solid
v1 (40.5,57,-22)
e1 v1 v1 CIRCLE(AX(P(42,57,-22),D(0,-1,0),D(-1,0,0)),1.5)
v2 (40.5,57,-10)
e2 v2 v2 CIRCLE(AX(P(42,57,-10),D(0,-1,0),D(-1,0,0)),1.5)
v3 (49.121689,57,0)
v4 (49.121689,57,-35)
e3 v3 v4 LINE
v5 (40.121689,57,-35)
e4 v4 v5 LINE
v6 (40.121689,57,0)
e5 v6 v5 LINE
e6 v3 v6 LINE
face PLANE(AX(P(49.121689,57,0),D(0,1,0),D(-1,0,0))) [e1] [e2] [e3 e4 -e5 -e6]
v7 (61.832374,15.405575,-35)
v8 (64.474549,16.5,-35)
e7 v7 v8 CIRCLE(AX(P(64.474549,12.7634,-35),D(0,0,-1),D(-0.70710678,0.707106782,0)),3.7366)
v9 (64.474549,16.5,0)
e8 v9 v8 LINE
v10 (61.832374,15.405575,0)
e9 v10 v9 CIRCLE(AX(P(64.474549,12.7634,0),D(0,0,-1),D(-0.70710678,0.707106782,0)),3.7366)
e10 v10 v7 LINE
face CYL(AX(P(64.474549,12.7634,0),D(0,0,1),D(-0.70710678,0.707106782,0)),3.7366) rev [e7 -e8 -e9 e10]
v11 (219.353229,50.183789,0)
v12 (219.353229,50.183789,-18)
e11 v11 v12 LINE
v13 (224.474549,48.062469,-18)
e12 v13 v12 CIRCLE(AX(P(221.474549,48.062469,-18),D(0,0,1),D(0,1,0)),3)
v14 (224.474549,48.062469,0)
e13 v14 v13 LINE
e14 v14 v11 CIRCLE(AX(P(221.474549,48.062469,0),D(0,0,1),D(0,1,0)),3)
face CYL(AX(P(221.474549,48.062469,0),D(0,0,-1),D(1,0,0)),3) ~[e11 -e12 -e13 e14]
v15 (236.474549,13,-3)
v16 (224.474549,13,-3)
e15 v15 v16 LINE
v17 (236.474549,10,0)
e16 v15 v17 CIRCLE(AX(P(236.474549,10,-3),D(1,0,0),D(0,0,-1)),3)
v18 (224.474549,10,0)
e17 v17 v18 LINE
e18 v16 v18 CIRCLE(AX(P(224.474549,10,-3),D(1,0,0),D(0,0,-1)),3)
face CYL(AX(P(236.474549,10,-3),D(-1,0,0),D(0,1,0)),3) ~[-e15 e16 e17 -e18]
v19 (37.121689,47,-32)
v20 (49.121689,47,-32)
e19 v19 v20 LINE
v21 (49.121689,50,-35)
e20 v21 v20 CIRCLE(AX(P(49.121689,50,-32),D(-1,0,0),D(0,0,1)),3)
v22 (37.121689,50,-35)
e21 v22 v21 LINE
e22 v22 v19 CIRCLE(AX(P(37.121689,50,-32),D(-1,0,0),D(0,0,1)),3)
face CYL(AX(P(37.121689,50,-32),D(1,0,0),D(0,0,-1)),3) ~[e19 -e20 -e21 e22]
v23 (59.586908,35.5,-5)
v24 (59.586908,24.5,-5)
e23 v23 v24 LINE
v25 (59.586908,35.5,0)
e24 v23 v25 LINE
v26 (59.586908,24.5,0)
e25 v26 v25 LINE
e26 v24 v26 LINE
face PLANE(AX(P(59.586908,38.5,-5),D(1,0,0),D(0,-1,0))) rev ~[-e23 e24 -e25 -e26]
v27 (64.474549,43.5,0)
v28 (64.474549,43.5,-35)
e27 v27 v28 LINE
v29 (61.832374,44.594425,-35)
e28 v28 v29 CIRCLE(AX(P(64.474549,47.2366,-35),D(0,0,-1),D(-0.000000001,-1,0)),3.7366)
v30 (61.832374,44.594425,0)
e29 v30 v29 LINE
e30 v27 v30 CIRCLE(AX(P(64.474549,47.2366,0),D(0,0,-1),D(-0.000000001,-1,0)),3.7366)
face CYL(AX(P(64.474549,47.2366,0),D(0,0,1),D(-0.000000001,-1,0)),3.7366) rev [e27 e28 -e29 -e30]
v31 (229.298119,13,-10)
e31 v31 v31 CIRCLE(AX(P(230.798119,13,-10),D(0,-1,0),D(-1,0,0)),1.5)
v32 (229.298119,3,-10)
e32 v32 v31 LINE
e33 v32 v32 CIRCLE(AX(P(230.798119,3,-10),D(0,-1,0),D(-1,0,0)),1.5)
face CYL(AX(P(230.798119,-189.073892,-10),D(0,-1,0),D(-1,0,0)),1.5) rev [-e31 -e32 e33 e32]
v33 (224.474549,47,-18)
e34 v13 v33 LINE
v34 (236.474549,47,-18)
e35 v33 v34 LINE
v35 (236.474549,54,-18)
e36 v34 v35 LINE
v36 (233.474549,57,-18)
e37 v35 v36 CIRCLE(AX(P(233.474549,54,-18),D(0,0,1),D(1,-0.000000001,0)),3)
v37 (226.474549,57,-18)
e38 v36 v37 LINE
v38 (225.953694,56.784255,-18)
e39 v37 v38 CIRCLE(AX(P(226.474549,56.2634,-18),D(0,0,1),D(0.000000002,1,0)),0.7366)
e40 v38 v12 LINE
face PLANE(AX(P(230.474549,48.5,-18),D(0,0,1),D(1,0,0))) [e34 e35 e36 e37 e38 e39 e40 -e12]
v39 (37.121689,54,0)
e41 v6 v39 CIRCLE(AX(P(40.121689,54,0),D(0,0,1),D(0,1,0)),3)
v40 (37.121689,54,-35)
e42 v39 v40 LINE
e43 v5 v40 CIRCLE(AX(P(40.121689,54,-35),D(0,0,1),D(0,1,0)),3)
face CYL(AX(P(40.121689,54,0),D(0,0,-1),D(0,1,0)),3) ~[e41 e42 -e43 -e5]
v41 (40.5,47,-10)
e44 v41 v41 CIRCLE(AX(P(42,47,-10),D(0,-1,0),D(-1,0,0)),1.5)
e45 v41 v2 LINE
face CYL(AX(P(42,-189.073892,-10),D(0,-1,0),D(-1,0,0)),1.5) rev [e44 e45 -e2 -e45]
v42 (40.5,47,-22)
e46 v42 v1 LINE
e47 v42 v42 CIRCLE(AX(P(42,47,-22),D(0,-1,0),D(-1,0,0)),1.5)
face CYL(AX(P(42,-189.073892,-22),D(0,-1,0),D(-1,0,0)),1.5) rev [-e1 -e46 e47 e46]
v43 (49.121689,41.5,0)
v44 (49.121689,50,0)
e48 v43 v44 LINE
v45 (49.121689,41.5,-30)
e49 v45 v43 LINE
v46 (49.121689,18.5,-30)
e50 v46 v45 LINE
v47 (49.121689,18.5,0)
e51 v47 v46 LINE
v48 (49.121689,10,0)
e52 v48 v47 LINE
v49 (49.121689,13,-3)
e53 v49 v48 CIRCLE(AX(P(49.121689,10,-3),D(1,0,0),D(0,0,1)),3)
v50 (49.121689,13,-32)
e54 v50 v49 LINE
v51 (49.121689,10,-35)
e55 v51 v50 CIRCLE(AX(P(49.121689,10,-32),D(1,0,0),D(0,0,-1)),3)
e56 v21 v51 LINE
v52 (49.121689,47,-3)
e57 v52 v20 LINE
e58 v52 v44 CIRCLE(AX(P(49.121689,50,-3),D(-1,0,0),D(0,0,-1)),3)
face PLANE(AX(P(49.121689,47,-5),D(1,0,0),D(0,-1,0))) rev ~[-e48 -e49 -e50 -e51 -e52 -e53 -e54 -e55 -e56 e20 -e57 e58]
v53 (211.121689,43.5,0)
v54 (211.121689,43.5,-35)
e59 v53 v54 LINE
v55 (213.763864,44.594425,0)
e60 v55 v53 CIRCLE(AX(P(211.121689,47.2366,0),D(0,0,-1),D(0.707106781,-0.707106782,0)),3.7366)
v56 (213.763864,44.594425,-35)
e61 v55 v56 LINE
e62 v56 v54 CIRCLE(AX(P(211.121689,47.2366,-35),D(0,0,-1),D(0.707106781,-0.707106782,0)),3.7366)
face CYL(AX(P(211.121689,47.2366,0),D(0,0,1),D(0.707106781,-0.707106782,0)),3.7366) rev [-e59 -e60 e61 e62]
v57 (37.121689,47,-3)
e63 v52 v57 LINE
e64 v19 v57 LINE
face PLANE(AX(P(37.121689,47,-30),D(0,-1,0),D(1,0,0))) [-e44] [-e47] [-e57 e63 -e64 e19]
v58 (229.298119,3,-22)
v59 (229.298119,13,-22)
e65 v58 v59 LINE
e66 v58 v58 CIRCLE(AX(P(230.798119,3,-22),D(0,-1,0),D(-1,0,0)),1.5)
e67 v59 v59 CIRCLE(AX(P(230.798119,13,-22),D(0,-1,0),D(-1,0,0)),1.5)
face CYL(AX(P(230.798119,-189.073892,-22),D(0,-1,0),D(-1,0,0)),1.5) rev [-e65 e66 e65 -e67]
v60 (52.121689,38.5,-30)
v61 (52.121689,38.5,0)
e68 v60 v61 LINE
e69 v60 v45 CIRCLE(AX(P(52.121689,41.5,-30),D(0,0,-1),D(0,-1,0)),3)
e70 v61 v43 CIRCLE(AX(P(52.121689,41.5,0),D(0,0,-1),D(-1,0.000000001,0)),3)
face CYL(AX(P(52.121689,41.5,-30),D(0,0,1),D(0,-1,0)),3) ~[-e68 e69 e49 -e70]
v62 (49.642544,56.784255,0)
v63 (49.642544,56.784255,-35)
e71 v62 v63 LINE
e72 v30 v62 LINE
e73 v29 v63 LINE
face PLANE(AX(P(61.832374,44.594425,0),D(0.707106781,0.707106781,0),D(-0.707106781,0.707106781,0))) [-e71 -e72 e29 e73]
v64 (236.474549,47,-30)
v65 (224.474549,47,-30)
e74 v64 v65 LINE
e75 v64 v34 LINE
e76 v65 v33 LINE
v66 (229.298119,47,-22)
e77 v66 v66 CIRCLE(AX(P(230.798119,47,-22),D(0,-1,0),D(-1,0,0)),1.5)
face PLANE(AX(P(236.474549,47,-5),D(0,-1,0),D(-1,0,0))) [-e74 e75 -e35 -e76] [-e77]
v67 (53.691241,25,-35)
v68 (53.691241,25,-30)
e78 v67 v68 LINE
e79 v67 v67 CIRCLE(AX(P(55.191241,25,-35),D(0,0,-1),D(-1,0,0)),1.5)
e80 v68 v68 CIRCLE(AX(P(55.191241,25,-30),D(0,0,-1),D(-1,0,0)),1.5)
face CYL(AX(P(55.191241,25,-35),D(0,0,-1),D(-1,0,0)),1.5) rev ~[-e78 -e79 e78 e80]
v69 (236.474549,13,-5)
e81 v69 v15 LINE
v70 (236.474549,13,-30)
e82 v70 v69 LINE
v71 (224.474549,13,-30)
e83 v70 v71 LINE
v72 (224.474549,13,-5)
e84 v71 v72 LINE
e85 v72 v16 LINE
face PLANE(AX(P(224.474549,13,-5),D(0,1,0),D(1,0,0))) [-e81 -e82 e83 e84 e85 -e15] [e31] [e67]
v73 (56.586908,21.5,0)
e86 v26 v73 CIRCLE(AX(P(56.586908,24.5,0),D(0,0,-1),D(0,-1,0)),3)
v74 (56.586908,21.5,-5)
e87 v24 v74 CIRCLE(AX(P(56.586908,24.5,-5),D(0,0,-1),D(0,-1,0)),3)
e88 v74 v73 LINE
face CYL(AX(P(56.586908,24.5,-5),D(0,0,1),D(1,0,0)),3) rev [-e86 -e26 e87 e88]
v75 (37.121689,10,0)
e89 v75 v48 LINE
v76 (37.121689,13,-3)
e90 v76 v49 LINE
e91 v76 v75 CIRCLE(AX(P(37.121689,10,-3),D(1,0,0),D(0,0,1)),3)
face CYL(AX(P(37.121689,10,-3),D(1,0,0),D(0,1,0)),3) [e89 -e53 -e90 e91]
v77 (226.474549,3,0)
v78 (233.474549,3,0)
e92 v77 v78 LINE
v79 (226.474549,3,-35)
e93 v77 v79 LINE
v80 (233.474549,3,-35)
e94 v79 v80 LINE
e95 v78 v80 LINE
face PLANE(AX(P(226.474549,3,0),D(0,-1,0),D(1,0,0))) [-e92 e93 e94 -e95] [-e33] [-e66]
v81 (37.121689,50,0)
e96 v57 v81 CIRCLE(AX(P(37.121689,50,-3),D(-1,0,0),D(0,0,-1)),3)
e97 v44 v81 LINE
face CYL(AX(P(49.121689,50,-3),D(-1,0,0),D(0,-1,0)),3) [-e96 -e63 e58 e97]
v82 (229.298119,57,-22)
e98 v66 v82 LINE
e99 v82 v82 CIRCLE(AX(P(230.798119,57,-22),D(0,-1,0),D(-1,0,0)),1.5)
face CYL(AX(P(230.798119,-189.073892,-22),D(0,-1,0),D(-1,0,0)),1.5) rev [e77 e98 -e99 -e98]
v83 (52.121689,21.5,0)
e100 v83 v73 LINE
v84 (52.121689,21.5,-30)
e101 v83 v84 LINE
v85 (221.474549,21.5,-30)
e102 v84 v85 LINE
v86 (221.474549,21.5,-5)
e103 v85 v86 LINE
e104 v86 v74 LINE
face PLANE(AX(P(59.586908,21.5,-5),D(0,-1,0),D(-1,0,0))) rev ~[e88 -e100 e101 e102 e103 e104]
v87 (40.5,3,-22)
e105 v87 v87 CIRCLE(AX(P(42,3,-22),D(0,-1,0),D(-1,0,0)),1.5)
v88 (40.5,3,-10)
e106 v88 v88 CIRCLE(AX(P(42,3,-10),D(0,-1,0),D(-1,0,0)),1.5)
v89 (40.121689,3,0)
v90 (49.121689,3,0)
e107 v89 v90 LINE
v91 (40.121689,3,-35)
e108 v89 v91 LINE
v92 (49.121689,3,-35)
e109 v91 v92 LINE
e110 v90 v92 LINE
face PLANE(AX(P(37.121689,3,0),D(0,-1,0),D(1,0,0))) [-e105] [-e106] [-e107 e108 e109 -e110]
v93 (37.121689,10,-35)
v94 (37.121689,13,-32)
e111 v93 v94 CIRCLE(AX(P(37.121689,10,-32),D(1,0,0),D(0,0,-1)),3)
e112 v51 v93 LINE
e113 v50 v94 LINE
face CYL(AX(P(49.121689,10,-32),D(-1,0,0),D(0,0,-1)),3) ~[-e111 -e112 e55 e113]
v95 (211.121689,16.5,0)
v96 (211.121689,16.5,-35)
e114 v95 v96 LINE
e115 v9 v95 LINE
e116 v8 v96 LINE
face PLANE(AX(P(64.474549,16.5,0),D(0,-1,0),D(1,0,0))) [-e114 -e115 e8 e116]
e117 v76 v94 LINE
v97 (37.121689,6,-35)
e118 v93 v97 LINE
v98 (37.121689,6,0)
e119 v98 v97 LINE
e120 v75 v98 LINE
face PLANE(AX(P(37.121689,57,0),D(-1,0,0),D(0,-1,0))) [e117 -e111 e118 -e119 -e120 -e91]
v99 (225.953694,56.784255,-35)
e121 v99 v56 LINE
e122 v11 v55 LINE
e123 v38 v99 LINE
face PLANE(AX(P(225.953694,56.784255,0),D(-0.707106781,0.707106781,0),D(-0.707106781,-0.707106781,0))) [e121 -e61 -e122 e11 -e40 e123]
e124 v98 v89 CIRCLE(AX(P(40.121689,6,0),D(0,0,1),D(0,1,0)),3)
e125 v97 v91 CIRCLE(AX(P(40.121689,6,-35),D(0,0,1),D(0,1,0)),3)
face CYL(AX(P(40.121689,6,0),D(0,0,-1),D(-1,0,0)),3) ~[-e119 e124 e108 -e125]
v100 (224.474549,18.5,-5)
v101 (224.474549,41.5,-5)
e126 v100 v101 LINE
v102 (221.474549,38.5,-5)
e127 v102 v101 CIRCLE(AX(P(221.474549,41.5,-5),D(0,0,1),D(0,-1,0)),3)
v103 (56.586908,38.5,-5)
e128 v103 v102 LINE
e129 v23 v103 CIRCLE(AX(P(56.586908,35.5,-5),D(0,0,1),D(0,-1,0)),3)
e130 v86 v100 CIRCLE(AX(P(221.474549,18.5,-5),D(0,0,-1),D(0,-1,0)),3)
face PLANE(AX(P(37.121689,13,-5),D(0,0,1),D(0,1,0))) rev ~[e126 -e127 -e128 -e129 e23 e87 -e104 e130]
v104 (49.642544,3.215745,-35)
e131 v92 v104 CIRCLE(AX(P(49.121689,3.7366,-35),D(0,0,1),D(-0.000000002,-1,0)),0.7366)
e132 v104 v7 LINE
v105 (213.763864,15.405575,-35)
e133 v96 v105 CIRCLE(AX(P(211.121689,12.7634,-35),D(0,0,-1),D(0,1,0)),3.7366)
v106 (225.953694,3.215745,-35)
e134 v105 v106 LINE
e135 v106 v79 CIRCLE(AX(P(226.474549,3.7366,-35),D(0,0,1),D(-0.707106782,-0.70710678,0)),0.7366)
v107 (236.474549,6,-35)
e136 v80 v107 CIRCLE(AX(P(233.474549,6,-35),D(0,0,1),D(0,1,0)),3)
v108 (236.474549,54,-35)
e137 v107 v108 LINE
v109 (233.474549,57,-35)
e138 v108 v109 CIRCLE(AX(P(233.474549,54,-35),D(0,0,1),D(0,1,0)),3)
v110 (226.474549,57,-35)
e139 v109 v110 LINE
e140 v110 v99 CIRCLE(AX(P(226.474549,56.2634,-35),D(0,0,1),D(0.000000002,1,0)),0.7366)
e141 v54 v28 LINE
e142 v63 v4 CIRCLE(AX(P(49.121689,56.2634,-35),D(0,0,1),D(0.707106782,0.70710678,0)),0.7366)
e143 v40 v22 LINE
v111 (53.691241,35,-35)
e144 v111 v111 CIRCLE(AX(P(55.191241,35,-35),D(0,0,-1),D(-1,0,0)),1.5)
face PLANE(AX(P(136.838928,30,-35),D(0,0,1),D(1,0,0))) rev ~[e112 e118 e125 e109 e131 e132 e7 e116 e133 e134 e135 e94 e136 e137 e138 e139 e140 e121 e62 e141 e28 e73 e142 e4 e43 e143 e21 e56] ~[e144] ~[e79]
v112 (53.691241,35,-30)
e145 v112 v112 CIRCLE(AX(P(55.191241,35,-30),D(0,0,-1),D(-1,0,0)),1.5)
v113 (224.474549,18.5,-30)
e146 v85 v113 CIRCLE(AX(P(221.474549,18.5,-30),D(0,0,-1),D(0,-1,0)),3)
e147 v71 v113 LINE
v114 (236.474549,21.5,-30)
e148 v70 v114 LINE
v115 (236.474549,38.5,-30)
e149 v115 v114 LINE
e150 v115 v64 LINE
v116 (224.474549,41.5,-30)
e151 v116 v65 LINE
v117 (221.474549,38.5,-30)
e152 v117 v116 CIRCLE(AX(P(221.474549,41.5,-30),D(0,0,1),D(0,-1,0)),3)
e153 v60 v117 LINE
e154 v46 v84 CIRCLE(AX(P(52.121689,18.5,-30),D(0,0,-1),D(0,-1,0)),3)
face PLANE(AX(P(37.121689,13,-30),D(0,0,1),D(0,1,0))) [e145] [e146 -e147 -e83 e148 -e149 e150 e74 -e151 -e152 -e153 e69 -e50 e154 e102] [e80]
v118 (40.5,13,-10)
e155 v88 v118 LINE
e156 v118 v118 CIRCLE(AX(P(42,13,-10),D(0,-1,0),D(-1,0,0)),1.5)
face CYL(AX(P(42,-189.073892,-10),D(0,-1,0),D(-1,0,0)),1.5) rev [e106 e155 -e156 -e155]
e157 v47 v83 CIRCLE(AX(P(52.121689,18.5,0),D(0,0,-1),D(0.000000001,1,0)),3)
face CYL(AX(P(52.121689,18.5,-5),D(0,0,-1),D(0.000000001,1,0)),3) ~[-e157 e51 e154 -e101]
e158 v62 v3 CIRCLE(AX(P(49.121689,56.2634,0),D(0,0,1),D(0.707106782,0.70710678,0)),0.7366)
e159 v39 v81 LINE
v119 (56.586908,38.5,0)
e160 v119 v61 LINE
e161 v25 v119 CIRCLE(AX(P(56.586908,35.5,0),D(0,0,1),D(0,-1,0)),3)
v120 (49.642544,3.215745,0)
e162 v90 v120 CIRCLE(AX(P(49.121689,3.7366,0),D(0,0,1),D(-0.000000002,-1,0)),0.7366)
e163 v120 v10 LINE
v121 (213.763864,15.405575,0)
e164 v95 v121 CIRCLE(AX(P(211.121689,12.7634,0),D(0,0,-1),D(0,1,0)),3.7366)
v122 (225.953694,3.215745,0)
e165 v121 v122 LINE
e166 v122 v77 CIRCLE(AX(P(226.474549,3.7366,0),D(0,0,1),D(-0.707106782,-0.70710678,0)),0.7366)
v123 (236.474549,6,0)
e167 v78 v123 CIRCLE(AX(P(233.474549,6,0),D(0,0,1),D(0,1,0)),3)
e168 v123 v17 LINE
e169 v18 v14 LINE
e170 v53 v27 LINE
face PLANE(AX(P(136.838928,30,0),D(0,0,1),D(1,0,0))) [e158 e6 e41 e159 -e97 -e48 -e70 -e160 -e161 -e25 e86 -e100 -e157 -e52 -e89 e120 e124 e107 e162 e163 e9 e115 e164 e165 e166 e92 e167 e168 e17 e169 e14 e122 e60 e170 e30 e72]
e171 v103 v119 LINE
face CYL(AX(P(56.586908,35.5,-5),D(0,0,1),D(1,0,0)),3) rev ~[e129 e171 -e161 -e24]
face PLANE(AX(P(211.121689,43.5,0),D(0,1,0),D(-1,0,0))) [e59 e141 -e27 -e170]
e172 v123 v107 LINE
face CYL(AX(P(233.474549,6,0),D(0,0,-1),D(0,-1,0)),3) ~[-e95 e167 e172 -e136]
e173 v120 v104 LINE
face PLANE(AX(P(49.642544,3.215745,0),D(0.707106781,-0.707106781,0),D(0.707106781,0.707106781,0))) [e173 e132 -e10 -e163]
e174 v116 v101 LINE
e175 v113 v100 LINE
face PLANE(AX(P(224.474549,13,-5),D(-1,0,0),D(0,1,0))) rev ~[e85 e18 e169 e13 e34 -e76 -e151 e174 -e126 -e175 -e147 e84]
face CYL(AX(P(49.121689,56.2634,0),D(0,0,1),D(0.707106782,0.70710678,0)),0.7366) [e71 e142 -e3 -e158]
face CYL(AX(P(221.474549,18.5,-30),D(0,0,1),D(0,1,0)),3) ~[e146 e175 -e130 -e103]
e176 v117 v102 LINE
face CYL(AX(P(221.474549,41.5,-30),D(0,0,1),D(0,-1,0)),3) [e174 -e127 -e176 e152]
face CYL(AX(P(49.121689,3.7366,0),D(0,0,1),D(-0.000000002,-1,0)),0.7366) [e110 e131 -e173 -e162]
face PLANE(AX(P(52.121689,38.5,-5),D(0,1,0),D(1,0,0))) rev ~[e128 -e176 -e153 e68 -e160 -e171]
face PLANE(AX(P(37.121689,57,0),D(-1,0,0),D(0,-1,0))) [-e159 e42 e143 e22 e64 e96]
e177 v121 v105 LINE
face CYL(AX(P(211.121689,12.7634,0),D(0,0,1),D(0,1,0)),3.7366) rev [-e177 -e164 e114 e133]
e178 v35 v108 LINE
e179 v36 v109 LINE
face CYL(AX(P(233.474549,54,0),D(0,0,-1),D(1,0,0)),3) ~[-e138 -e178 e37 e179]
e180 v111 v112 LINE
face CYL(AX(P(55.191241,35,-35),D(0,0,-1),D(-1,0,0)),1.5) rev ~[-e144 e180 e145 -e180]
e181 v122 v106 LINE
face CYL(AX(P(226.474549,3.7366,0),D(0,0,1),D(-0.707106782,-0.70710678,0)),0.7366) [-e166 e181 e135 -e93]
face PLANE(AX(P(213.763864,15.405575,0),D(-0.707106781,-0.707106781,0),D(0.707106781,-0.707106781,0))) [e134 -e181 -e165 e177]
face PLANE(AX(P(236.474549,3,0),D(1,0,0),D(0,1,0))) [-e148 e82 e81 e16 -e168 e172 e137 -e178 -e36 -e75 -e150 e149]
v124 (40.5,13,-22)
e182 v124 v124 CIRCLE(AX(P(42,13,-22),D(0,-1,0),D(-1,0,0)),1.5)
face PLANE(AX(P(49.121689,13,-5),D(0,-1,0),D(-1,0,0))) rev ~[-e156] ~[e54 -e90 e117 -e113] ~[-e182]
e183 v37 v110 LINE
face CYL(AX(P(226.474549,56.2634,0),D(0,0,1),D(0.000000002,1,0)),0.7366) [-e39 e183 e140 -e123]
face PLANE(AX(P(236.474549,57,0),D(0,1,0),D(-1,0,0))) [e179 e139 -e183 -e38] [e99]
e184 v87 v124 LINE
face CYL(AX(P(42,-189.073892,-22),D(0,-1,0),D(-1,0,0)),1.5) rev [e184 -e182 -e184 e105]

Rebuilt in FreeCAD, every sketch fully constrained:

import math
import FreeCAD as App
import Part
import Sketcher
from FreeCAD import Vector
Q = App.Units.Quantity


def edges_at(feature, points):
    """Names of the edges that pass closest to the given points."""
    edges = feature.Shape.Edges
    near = lambda p: min(range(len(edges)), key=lambda i: edges[i].distToShape(Part.Vertex(*p))[0])
    return sorted({f"Edge{near(p) + 1}" for p in points})


def add_polygon(sketch, points):
    """Adds a closed chain of lines whose ends are joined by coincident constraints."""
    first, n = sketch.GeometryCount, len(points)
    for a, b in zip(points, points[1:] + points[:1]):
        sketch.addGeometry(Part.LineSegment(App.Vector(*a, 0), App.Vector(*b, 0)), False)
    for i in range(n):
        sketch.addConstraint(Sketcher.Constraint("Coincident", first + i, 2, first + (i + 1) % n, 1))

doc = App.newDocument("Part")
body = doc.addObject("PartDesign::Body", "Body")

# Sketch on XY plane
sketch1 = body.newObject("Sketcher::SketchObject", "Sketch")
sketch1.AttachmentSupport = (doc.getObject("XY_Plane"), [""])
sketch1.MapMode = "FlatFace"
sketch1.addGeometry(Part.LineSegment(Vector(49.1, 57, 0), Vector(37.1, 57, 0)), False)
sketch1.addGeometry(Part.LineSegment(Vector(37.1, 57, 0), Vector(37.1, 3, 0)), False)
sketch1.addGeometry(Part.LineSegment(Vector(37.1, 3, 0), Vector(49.1, 3, 0)), False)
sketch1.addGeometry(Part.ArcOfCircle(Part.Circle(Vector(49.1, 3.7, 0), Vector(0, 0, 1), 0.7), math.radians(-90), math.radians(-45)), False)
sketch1.addGeometry(Part.LineSegment(Vector(49.6, 3.2, 0), Vector(61.8, 15.4, 0)), False)
sketch1.addGeometry(Part.ArcOfCircle(Part.Circle(Vector(64.5, 12.8, 0), Vector(0, 0, 1), 3.7), math.radians(90), math.radians(135)), False)
sketch1.addGeometry(Part.LineSegment(Vector(64.5, 16.5, 0), Vector(211.1, 16.5, 0)), False)
sketch1.addGeometry(Part.ArcOfCircle(Part.Circle(Vector(211.1, 12.8, 0), Vector(0, 0, 1), 3.7), math.radians(45), math.radians(90)), False)
sketch1.addGeometry(Part.LineSegment(Vector(213.8, 15.4, 0), Vector(226, 3.2, 0)), False)
sketch1.addGeometry(Part.ArcOfCircle(Part.Circle(Vector(226.5, 3.7, 0), Vector(0, 0, 1), 0.7), math.radians(-135), math.radians(-90)), False)
sketch1.addGeometry(Part.LineSegment(Vector(226.5, 3, 0), Vector(236.5, 3, 0)), False)
sketch1.addGeometry(Part.LineSegment(Vector(236.5, 3, 0), Vector(236.5, 57, 0)), False)
sketch1.addGeometry(Part.LineSegment(Vector(236.5, 57, 0), Vector(226.5, 57, 0)), False)
sketch1.addGeometry(Part.ArcOfCircle(Part.Circle(Vector(226.5, 56.3, 0), Vector(0, 0, 1), 0.7), math.radians(90), math.radians(135)), False)
sketch1.addGeometry(Part.LineSegment(Vector(226, 56.8, 0), Vector(213.8, 44.6, 0)), False)
sketch1.addGeometry(Part.ArcOfCircle(Part.Circle(Vector(211.1, 47.2, 0), Vector(0, 0, 1), 3.7), math.radians(-90), math.radians(-45)), False)
sketch1.addGeometry(Part.LineSegment(Vector(211.1, 43.5, 0), Vector(64.5, 43.5, 0)), False)
sketch1.addGeometry(Part.ArcOfCircle(Part.Circle(Vector(64.5, 47.2, 0), Vector(0, 0, 1), 3.7), math.radians(-135), math.radians(-90)), False)
sketch1.addGeometry(Part.LineSegment(Vector(61.8, 44.6, 0), Vector(49.6, 56.8, 0)), False)
sketch1.addGeometry(Part.ArcOfCircle(Part.Circle(Vector(49.1, 56.3, 0), Vector(0, 0, 1), 0.7), math.radians(45), math.radians(90)), False)
sketch1.addConstraint(Sketcher.Constraint("Coincident", 0, 2, 1, 1))
sketch1.addConstraint(Sketcher.Constraint("Coincident", 1, 2, 2, 1))
sketch1.addConstraint(Sketcher.Constraint("Tangent", 2, 2, 3, 1))
sketch1.addConstraint(Sketcher.Constraint("Tangent", 3, 2, 4, 1))
sketch1.addConstraint(Sketcher.Constraint("Tangent", 4, 2, 5, 2))
sketch1.addConstraint(Sketcher.Constraint("Tangent", 5, 1, 6, 1))
sketch1.addConstraint(Sketcher.Constraint("Tangent", 6, 2, 7, 2))
sketch1.addConstraint(Sketcher.Constraint("Tangent", 7, 1, 8, 1))
sketch1.addConstraint(Sketcher.Constraint("Tangent", 8, 2, 9, 1))
sketch1.addConstraint(Sketcher.Constraint("Tangent", 9, 2, 10, 1))
sketch1.addConstraint(Sketcher.Constraint("Coincident", 10, 2, 11, 1))
sketch1.addConstraint(Sketcher.Constraint("Coincident", 11, 2, 12, 1))
sketch1.addConstraint(Sketcher.Constraint("Tangent", 12, 2, 13, 1))
sketch1.addConstraint(Sketcher.Constraint("Tangent", 13, 2, 14, 1))
sketch1.addConstraint(Sketcher.Constraint("Tangent", 14, 2, 15, 2))
sketch1.addConstraint(Sketcher.Constraint("Tangent", 15, 1, 16, 1))
sketch1.addConstraint(Sketcher.Constraint("Tangent", 16, 2, 17, 2))
sketch1.addConstraint(Sketcher.Constraint("Tangent", 17, 1, 18, 1))
sketch1.addConstraint(Sketcher.Constraint("Tangent", 18, 2, 19, 1))
sketch1.addConstraint(Sketcher.Constraint("Tangent", 19, 2, 0, 1))
sketch1.addConstraint(Sketcher.Constraint("Horizontal", 0))
sketch1.addConstraint(Sketcher.Constraint("Vertical", 1))
sketch1.addConstraint(Sketcher.Constraint("Horizontal", 2))
sketch1.addConstraint(Sketcher.Constraint("Horizontal", 6))
sketch1.addConstraint(Sketcher.Constraint("Horizontal", 10))
sketch1.addConstraint(Sketcher.Constraint("Vertical", 11))
sketch1.addConstraint(Sketcher.Constraint("Horizontal", 12))
sketch1.addConstraint(Sketcher.Constraint("Horizontal", 16))
sketch1.addConstraint(Sketcher.Constraint("Equal", 5, 7))
sketch1.addConstraint(Sketcher.Constraint("Equal", 3, 9))
sketch1.addConstraint(Sketcher.Constraint("Equal", 9, 13))
sketch1.addConstraint(Sketcher.Constraint("Equal", 7, 15))
sketch1.addConstraint(Sketcher.Constraint("Equal", 15, 17))
sketch1.addConstraint(Sketcher.Constraint("Equal", 13, 19))
sketch1.addConstraint(Sketcher.Constraint("Perpendicular", 4, 8))
sketch1.addConstraint(Sketcher.Constraint("Perpendicular", 8, 14))
sketch1.addConstraint(Sketcher.Constraint("Perpendicular", 14, 18))
sketch1.addConstraint(Sketcher.Constraint("Horizontal", 3, 3, 9, 3))
sketch1.addConstraint(Sketcher.Constraint("Horizontal", 13, 3, 19, 3))
sketch1.addConstraint(Sketcher.Constraint("Horizontal", 4, 2, 7, 1))
sketch1.addConstraint(Sketcher.Constraint("Vertical", 9, 3, 13, 3))
sketch1.addConstraint(Sketcher.Constraint("Vertical", 7, 3, 15, 3))
sketch1.addConstraint(Sketcher.Constraint("Vertical", 5, 3, 17, 3))
sketch1.addConstraint(Sketcher.Constraint("DistanceX", 0, 2, 0, 1, Q("12 mm")))
sketch1.addConstraint(Sketcher.Constraint("DistanceX", 10, 1, 10, 2, Q("10 mm")))
sketch1.addConstraint(Sketcher.Constraint("DistanceY", 1, 2, 1, 1, Q("54 mm")))
sketch1.addConstraint(Sketcher.Constraint("DistanceY", -1, 1, 0, 2, Q("57 mm")))
sketch1.addConstraint(Sketcher.Constraint("DistanceX", 3, 3, 7, 3, Q("162 mm")))
sketch1.addConstraint(Sketcher.Constraint("DistanceY", 5, 1, 16, 2, Q("27 mm")))
sketch1.addConstraint(Sketcher.Constraint("Radius", 3, Q("0.7366 mm")))
sketch1.addConstraint(Sketcher.Constraint("Radius", 5, Q("3.7366 mm")))
sketch1.addConstraint(Sketcher.Constraint("DistanceX", -1, 1, 3, 3, Q("49.121689 mm")))
pad1 = body.newObject("PartDesign::Pad", "Pad")
pad1.Profile = sketch1
pad1.Length = 35
pad1.Reversed = True

# Sketch on YZ plane
sketch2 = body.newObject("Sketcher::SketchObject", "Sketch001")
sketch2.AttachmentSupport = (doc.getObject("YZ_Plane"), [""])
sketch2.MapMode = "FlatFace"
sketch2.AttachmentOffset = App.Placement(Vector(0, 0, 37.121689), App.Rotation())
add_polygon(sketch2, [(38, -30), (22, -30), (22, -5), (38, -5)])  # lines 0-3
sketch2.addConstraint(Sketcher.Constraint("Horizontal", 0))
sketch2.addConstraint(Sketcher.Constraint("Vertical", 1))
sketch2.addConstraint(Sketcher.Constraint("Horizontal", 2))
sketch2.addConstraint(Sketcher.Constraint("Vertical", 3))
sketch2.addConstraint(Sketcher.Constraint("DistanceX", 0, 2, 0, 1, Q("17 mm")))
sketch2.addConstraint(Sketcher.Constraint("DistanceY", 1, 1, 1, 2, Q("25 mm")))
sketch2.addConstraint(Sketcher.Constraint("DistanceY", 0, 2, -1, 1, Q("30 mm")))
sketch2.addConstraint(Sketcher.Constraint("DistanceX", -1, 1, 0, 2, Q("21.5 mm")))
pocket1 = body.newObject("PartDesign::Pocket", "Pocket")
pocket1.Profile = sketch2
pocket1.Type = "ThroughAll"
pocket1.Reversed = True

# Sketch on YZ plane
sketch3 = body.newObject("Sketcher::SketchObject", "Sketch002")
sketch3.AttachmentSupport = (doc.getObject("YZ_Plane"), [""])
sketch3.MapMode = "FlatFace"
sketch3.AttachmentOffset = App.Placement(Vector(0, 0, 37.121689), App.Rotation())
add_polygon(sketch3, [(47, -30), (38, -30), (38, -5), (47, -5)])  # lines 0-3
add_polygon(sketch3, [(22, -30), (13, -30), (13, -5), (22, -5)])  # lines 4-7
sketch3.addConstraint(Sketcher.Constraint("Horizontal", 0))
sketch3.addConstraint(Sketcher.Constraint("Vertical", 1))
sketch3.addConstraint(Sketcher.Constraint("Horizontal", 2))
sketch3.addConstraint(Sketcher.Constraint("Vertical", 3))
sketch3.addConstraint(Sketcher.Constraint("Horizontal", 4))
sketch3.addConstraint(Sketcher.Constraint("Vertical", 5))
sketch3.addConstraint(Sketcher.Constraint("Horizontal", 6))
sketch3.addConstraint(Sketcher.Constraint("Vertical", 7))
sketch3.addConstraint(Sketcher.Constraint("Horizontal", 3, 2, 4, 2))
sketch3.addConstraint(Sketcher.Constraint("Horizontal", 2, 2, 5, 2))
sketch3.addConstraint(Sketcher.Constraint("Equal", 2, 4))
sketch3.addConstraint(Sketcher.Constraint("DistanceY", 1, 1, 1, 2, Q("25 mm")))
sketch3.addConstraint(Sketcher.Constraint("DistanceX", 0, 2, 0, 1, Q("8.5 mm")))
sketch3.addConstraint(Sketcher.Constraint("DistanceY", 0, 2, -1, 1, Q("30 mm")))
sketch3.addConstraint(Sketcher.Constraint("DistanceX", -1, 1, 2, 2, Q("47 mm")))
sketch3.addConstraint(Sketcher.Constraint("DistanceX", -1, 1, 4, 2, Q("13 mm")))
pocket2 = body.newObject("PartDesign::Pocket", "Pocket001")
pocket2.Profile = sketch3
pocket2.Length = 12
pocket2.Reversed = True
doc.recompute()

datumplane = body.newObject("PartDesign::Plane", "DatumPlane")
datumplane.AttachmentSupport = (doc.getObject("YZ_Plane"), [""])
datumplane.MapMode = "FlatFace"
datumplane.AttachmentOffset = App.Placement(Vector(0, 0, 136.798119), App.Rotation())
mirrored = body.newObject("PartDesign::Mirrored", "Mirrored")
mirrored.Originals = [pocket2]
mirrored.MirrorPlane = (datumplane, [""])
body.Tip = mirrored
doc.recompute()

fillet = body.newObject("PartDesign::Fillet", "Fillet")
fillet.Base = (mirrored, edges_at(mirrored, [
    (224.475, 38.5, -17.5),
    (224.475, 21.5, -17.5),
    (37.122, 3, -17.5),
    (37.122, 57, -17.5),
    (236.475, 57, -17.5),
    (236.475, 3, -17.5),
    (49.122, 38.5, -17.5),
    (49.122, 21.5, -17.5),
]))
fillet.Radius = 3

# Sketch on XZ plane
sketch4 = body.newObject("Sketcher::SketchObject", "Sketch003")
sketch4.AttachmentSupport = (doc.getObject("XZ_Plane"), [""])
sketch4.MapMode = "FlatFace"
sketch4.AttachmentOffset = App.Placement(Vector(0, 0, -57), App.Rotation())
sketch4.addGeometry(Part.Circle(Vector(42, -22, 0), Vector(0, 0, 1), 1.5), False)
sketch4.addGeometry(Part.Circle(Vector(42, -10, 0), Vector(0, 0, 1), 1.5), False)
sketch4.addGeometry(Part.Circle(Vector(230.8, -22, 0), Vector(0, 0, 1), 1.5), False)
sketch4.addGeometry(Part.Circle(Vector(230.8, -10, 0), Vector(0, 0, 1), 1.5), False)
sketch4.addConstraint(Sketcher.Constraint("Equal", 0, 1))
sketch4.addConstraint(Sketcher.Constraint("Equal", 1, 2))
sketch4.addConstraint(Sketcher.Constraint("Equal", 2, 3))
sketch4.addConstraint(Sketcher.Constraint("Horizontal", 0, 3, 2, 3))
sketch4.addConstraint(Sketcher.Constraint("Horizontal", 1, 3, 3, 3))
sketch4.addConstraint(Sketcher.Constraint("Vertical", 0, 3, 1, 3))
sketch4.addConstraint(Sketcher.Constraint("Vertical", 2, 3, 3, 3))
sketch4.addConstraint(Sketcher.Constraint("Diameter", 0, Q("3 mm")))
sketch4.addConstraint(Sketcher.Constraint("DistanceX", -1, 1, 0, 3, Q("42 mm")))
sketch4.addConstraint(Sketcher.Constraint("DistanceY", 0, 3, -1, 1, Q("22 mm")))
sketch4.addConstraint(Sketcher.Constraint("DistanceY", 1, 3, -1, 1, Q("10 mm")))
sketch4.addConstraint(Sketcher.Constraint("DistanceX", -1, 1, 2, 3, Q("230.798119 mm")))
pocket3 = body.newObject("PartDesign::Pocket", "Pocket002")
pocket3.Profile = sketch4
pocket3.Type = "ThroughAll"
pocket3.Midplane = True

# Sketch on XY plane
sketch5 = body.newObject("Sketcher::SketchObject", "Sketch004")
sketch5.AttachmentSupport = (doc.getObject("XY_Plane"), [""])
sketch5.MapMode = "FlatFace"
sketch5.AttachmentOffset = App.Placement(Vector(0, 0, -5), App.Rotation())
add_polygon(sketch5, [(224, 13), (224, 47), (236, 47), (236, 13)])  # lines 0-3
add_polygon(sketch5, [(49, 13), (37, 13), (37, 47), (49, 47)])  # lines 4-7
sketch5.addConstraint(Sketcher.Constraint("Vertical", 0))
sketch5.addConstraint(Sketcher.Constraint("Horizontal", 1))
sketch5.addConstraint(Sketcher.Constraint("Vertical", 2))
sketch5.addConstraint(Sketcher.Constraint("Horizontal", 3))
sketch5.addConstraint(Sketcher.Constraint("Horizontal", 4))
sketch5.addConstraint(Sketcher.Constraint("Vertical", 5))
sketch5.addConstraint(Sketcher.Constraint("Horizontal", 6))
sketch5.addConstraint(Sketcher.Constraint("Vertical", 7))
sketch5.addConstraint(Sketcher.Constraint("Horizontal", 3, 2, 4, 2))
sketch5.addConstraint(Sketcher.Constraint("Horizontal", 1, 2, 5, 2))
sketch5.addConstraint(Sketcher.Constraint("Equal", 3, 4))
sketch5.addConstraint(Sketcher.Constraint("DistanceX", 1, 1, 1, 2, Q("12 mm")))
sketch5.addConstraint(Sketcher.Constraint("DistanceY", 0, 1, 0, 2, Q("34 mm")))
sketch5.addConstraint(Sketcher.Constraint("DistanceY", -1, 1, 0, 2, Q("47 mm")))
sketch5.addConstraint(Sketcher.Constraint("DistanceX", -1, 1, 0, 2, Q("224.474549 mm")))
sketch5.addConstraint(Sketcher.Constraint("DistanceX", -1, 1, 4, 2, Q("37.121689 mm")))
pocket4 = body.newObject("PartDesign::Pocket", "Pocket003")
pocket4.Profile = sketch5
pocket4.Length = 10
pocket4.Reversed = True
doc.recompute()

fillet2 = body.newObject("PartDesign::Fillet", "Fillet001")
fillet2.Base = (pocket4, edges_at(pocket4, [
    (230.475, 13, 0),
    (230.475, 47, 0),
    (43.122, 47, 0),
    (43.122, 13, 0),
]))
fillet2.Radius = 3

# Sketch on XY plane
sketch6 = body.newObject("Sketcher::SketchObject", "Sketch005")
sketch6.AttachmentSupport = (doc.getObject("XY_Plane"), [""])
sketch6.MapMode = "FlatFace"
sketch6.addGeometry(Part.LineSegment(Vector(224.5, 47, 0), Vector(236.5, 47, 0)), False)
sketch6.addGeometry(Part.LineSegment(Vector(236.5, 47, 0), Vector(236.5, 54, 0)), False)
sketch6.addGeometry(Part.ArcOfCircle(Part.Circle(Vector(233.5, 54, 0), Vector(0, 0, 1), 3), math.radians(0), math.radians(90)), False)
sketch6.addGeometry(Part.LineSegment(Vector(233.5, 57, 0), Vector(226.5, 57, 0)), False)
sketch6.addGeometry(Part.ArcOfCircle(Part.Circle(Vector(226.5, 56.3, 0), Vector(0, 0, 1), 0.7), math.radians(90), math.radians(135)), False)
sketch6.addGeometry(Part.LineSegment(Vector(226, 56.8, 0), Vector(224.5, 55.3, 0)), False)
sketch6.addGeometry(Part.LineSegment(Vector(224.5, 55.3, 0), Vector(224.5, 47, 0)), False)
sketch6.addConstraint(Sketcher.Constraint("Coincident", 0, 2, 1, 1))
sketch6.addConstraint(Sketcher.Constraint("Tangent", 1, 2, 2, 1))
sketch6.addConstraint(Sketcher.Constraint("Tangent", 2, 2, 3, 1))
sketch6.addConstraint(Sketcher.Constraint("Tangent", 3, 2, 4, 1))
sketch6.addConstraint(Sketcher.Constraint("Tangent", 4, 2, 5, 1))
sketch6.addConstraint(Sketcher.Constraint("Coincident", 5, 2, 6, 1))
sketch6.addConstraint(Sketcher.Constraint("Coincident", 6, 2, 0, 1))
sketch6.addConstraint(Sketcher.Constraint("Horizontal", 0))
sketch6.addConstraint(Sketcher.Constraint("Vertical", 1))
sketch6.addConstraint(Sketcher.Constraint("Horizontal", 3))
sketch6.addConstraint(Sketcher.Constraint("Vertical", 6))
sketch6.addConstraint(Sketcher.Constraint("Equal", 3, 1))
sketch6.addConstraint(Sketcher.Constraint("Radius", 2, Q("3 mm")))
sketch6.addConstraint(Sketcher.Constraint("DistanceX", 0, 1, 0, 2, Q("12 mm")))
sketch6.addConstraint(Sketcher.Constraint("DistanceX", 3, 2, 3, 1, Q("7 mm")))
sketch6.addConstraint(Sketcher.Constraint("Angle", 5, Q("-135 deg")))
sketch6.addConstraint(Sketcher.Constraint("DistanceY", -1, 1, 2, 3, Q("54 mm")))
sketch6.addConstraint(Sketcher.Constraint("Radius", 4, Q("0.7366 mm")))
sketch6.addConstraint(Sketcher.Constraint("DistanceX", -1, 1, 2, 3, Q("233.474549 mm")))
pocket5 = body.newObject("PartDesign::Pocket", "Pocket004")
pocket5.Profile = sketch6
pocket5.Length = 18
doc.recompute()

fillet3 = body.newObject("PartDesign::Fillet", "Fillet002")
fillet3.Base = (pocket5, edges_at(pocket5, [(224.475, 55.305, -9)]))
fillet3.Radius = 3

# Sketch on XY plane
sketch7 = body.newObject("Sketcher::SketchObject", "Sketch006")
sketch7.AttachmentSupport = (doc.getObject("XY_Plane"), [""])
sketch7.MapMode = "FlatFace"
sketch7.AttachmentOffset = App.Placement(Vector(0, 0, -30), App.Rotation())
add_polygon(sketch7, [(49, 13), (49, 47), (37, 47), (37, 13)])  # lines 0-3
sketch7.addConstraint(Sketcher.Constraint("Vertical", 0))
sketch7.addConstraint(Sketcher.Constraint("Horizontal", 1))
sketch7.addConstraint(Sketcher.Constraint("Vertical", 2))
sketch7.addConstraint(Sketcher.Constraint("Horizontal", 3))
sketch7.addConstraint(Sketcher.Constraint("DistanceX", 1, 2, 1, 1, Q("12 mm")))
sketch7.addConstraint(Sketcher.Constraint("DistanceY", 0, 1, 0, 2, Q("34 mm")))
sketch7.addConstraint(Sketcher.Constraint("DistanceY", -1, 1, 0, 2, Q("47 mm")))
sketch7.addConstraint(Sketcher.Constraint("DistanceX", -1, 1, 0, 2, Q("49.121689 mm")))
pocket6 = body.newObject("PartDesign::Pocket", "Pocket005")
pocket6.Profile = sketch7
pocket6.Length = 10
doc.recompute()

fillet4 = body.newObject("PartDesign::Fillet", "Fillet003")
fillet4.Base = (pocket6, edges_at(pocket6, [(43.122, 13, -35), (43.122, 47, -35)]))
fillet4.Radius = 3

# Sketch on XY plane
sketch8 = body.newObject("Sketcher::SketchObject", "Sketch007")
sketch8.AttachmentSupport = (doc.getObject("XY_Plane"), [""])
sketch8.MapMode = "FlatFace"
sketch8.AttachmentOffset = App.Placement(Vector(0, 0, -35), App.Rotation())
sketch8.addGeometry(Part.Circle(Vector(55.2, 25, 0), Vector(0, 0, 1), 1.5), False)
sketch8.addGeometry(Part.Circle(Vector(55.2, 35, 0), Vector(0, 0, 1), 1.5), False)
sketch8.addConstraint(Sketcher.Constraint("Equal", 0, 1))
sketch8.addConstraint(Sketcher.Constraint("Vertical", 0, 3, 1, 3))
sketch8.addConstraint(Sketcher.Constraint("Diameter", 0, Q("3 mm")))
sketch8.addConstraint(Sketcher.Constraint("DistanceY", -1, 1, 0, 3, Q("25 mm")))
sketch8.addConstraint(Sketcher.Constraint("DistanceY", -1, 1, 1, 3, Q("35 mm")))
sketch8.addConstraint(Sketcher.Constraint("DistanceX", -1, 1, 0, 3, Q("55.191241 mm")))
pocket7 = body.newObject("PartDesign::Pocket", "Pocket006")
pocket7.Profile = sketch8
pocket7.Length = 8
pocket7.Reversed = True

# Sketch on XY plane
sketch9 = body.newObject("Sketcher::SketchObject", "Sketch008")
sketch9.AttachmentSupport = (doc.getObject("XY_Plane"), [""])
sketch9.MapMode = "FlatFace"
sketch9.AttachmentOffset = App.Placement(Vector(0, 0, -5), App.Rotation())
sketch9.addGeometry(Part.LineSegment(Vector(52.1, 38.5, 0), Vector(59.6, 38.5, 0)), False)
sketch9.addGeometry(Part.LineSegment(Vector(59.6, 38.5, 0), Vector(59.6, 21.5, 0)), False)
sketch9.addGeometry(Part.LineSegment(Vector(59.6, 21.5, 0), Vector(52.1, 21.5, 0)), False)
sketch9.addGeometry(Part.ArcOfCircle(Part.Circle(Vector(52.1, 18.5, 0), Vector(0, 0, 1), 3), math.radians(90), math.radians(180)), False)
sketch9.addGeometry(Part.LineSegment(Vector(49.1, 18.5, 0), Vector(49.1, 41.5, 0)), False)
sketch9.addGeometry(Part.ArcOfCircle(Part.Circle(Vector(52.1, 41.5, 0), Vector(0, 0, 1), 3), math.radians(180), math.radians(270)), False)
sketch9.addConstraint(Sketcher.Constraint("Coincident", 0, 2, 1, 1))
sketch9.addConstraint(Sketcher.Constraint("Coincident", 1, 2, 2, 1))
sketch9.addConstraint(Sketcher.Constraint("Tangent", 2, 2, 3, 1))
sketch9.addConstraint(Sketcher.Constraint("Tangent", 3, 2, 4, 1))
sketch9.addConstraint(Sketcher.Constraint("Tangent", 4, 2, 5, 1))
sketch9.addConstraint(Sketcher.Constraint("Tangent", 5, 2, 0, 1))
sketch9.addConstraint(Sketcher.Constraint("Horizontal", 0))
sketch9.addConstraint(Sketcher.Constraint("Vertical", 1))
sketch9.addConstraint(Sketcher.Constraint("Horizontal", 2))
sketch9.addConstraint(Sketcher.Constraint("Vertical", 4))
sketch9.addConstraint(Sketcher.Constraint("Equal", 3, 5))
sketch9.addConstraint(Sketcher.Constraint("Radius", 3, Q("3 mm")))
sketch9.addConstraint(Sketcher.Constraint("DistanceY", 1, 2, 1, 1, Q("17 mm")))
sketch9.addConstraint(Sketcher.Constraint("DistanceY", -1, 1, 3, 3, Q("18.5 mm")))
sketch9.addConstraint(Sketcher.Constraint("DistanceX", 0, 1, 0, 2, Q("7.465219 mm")))
sketch9.addConstraint(Sketcher.Constraint("DistanceX", -1, 1, 3, 3, Q("52.121689 mm")))
pocket8 = body.newObject("PartDesign::Pocket", "Pocket007")
pocket8.Profile = sketch9
pocket8.Length = 8
pocket8.Reversed = True
doc.recompute()

fillet5 = body.newObject("PartDesign::Fillet", "Fillet004")
fillet5.Base = (pocket8, edges_at(pocket8, [(59.587, 38.5, -2.5), (59.587, 21.5, -2.5)]))
fillet5.Radius = 3

doc.recompute()
